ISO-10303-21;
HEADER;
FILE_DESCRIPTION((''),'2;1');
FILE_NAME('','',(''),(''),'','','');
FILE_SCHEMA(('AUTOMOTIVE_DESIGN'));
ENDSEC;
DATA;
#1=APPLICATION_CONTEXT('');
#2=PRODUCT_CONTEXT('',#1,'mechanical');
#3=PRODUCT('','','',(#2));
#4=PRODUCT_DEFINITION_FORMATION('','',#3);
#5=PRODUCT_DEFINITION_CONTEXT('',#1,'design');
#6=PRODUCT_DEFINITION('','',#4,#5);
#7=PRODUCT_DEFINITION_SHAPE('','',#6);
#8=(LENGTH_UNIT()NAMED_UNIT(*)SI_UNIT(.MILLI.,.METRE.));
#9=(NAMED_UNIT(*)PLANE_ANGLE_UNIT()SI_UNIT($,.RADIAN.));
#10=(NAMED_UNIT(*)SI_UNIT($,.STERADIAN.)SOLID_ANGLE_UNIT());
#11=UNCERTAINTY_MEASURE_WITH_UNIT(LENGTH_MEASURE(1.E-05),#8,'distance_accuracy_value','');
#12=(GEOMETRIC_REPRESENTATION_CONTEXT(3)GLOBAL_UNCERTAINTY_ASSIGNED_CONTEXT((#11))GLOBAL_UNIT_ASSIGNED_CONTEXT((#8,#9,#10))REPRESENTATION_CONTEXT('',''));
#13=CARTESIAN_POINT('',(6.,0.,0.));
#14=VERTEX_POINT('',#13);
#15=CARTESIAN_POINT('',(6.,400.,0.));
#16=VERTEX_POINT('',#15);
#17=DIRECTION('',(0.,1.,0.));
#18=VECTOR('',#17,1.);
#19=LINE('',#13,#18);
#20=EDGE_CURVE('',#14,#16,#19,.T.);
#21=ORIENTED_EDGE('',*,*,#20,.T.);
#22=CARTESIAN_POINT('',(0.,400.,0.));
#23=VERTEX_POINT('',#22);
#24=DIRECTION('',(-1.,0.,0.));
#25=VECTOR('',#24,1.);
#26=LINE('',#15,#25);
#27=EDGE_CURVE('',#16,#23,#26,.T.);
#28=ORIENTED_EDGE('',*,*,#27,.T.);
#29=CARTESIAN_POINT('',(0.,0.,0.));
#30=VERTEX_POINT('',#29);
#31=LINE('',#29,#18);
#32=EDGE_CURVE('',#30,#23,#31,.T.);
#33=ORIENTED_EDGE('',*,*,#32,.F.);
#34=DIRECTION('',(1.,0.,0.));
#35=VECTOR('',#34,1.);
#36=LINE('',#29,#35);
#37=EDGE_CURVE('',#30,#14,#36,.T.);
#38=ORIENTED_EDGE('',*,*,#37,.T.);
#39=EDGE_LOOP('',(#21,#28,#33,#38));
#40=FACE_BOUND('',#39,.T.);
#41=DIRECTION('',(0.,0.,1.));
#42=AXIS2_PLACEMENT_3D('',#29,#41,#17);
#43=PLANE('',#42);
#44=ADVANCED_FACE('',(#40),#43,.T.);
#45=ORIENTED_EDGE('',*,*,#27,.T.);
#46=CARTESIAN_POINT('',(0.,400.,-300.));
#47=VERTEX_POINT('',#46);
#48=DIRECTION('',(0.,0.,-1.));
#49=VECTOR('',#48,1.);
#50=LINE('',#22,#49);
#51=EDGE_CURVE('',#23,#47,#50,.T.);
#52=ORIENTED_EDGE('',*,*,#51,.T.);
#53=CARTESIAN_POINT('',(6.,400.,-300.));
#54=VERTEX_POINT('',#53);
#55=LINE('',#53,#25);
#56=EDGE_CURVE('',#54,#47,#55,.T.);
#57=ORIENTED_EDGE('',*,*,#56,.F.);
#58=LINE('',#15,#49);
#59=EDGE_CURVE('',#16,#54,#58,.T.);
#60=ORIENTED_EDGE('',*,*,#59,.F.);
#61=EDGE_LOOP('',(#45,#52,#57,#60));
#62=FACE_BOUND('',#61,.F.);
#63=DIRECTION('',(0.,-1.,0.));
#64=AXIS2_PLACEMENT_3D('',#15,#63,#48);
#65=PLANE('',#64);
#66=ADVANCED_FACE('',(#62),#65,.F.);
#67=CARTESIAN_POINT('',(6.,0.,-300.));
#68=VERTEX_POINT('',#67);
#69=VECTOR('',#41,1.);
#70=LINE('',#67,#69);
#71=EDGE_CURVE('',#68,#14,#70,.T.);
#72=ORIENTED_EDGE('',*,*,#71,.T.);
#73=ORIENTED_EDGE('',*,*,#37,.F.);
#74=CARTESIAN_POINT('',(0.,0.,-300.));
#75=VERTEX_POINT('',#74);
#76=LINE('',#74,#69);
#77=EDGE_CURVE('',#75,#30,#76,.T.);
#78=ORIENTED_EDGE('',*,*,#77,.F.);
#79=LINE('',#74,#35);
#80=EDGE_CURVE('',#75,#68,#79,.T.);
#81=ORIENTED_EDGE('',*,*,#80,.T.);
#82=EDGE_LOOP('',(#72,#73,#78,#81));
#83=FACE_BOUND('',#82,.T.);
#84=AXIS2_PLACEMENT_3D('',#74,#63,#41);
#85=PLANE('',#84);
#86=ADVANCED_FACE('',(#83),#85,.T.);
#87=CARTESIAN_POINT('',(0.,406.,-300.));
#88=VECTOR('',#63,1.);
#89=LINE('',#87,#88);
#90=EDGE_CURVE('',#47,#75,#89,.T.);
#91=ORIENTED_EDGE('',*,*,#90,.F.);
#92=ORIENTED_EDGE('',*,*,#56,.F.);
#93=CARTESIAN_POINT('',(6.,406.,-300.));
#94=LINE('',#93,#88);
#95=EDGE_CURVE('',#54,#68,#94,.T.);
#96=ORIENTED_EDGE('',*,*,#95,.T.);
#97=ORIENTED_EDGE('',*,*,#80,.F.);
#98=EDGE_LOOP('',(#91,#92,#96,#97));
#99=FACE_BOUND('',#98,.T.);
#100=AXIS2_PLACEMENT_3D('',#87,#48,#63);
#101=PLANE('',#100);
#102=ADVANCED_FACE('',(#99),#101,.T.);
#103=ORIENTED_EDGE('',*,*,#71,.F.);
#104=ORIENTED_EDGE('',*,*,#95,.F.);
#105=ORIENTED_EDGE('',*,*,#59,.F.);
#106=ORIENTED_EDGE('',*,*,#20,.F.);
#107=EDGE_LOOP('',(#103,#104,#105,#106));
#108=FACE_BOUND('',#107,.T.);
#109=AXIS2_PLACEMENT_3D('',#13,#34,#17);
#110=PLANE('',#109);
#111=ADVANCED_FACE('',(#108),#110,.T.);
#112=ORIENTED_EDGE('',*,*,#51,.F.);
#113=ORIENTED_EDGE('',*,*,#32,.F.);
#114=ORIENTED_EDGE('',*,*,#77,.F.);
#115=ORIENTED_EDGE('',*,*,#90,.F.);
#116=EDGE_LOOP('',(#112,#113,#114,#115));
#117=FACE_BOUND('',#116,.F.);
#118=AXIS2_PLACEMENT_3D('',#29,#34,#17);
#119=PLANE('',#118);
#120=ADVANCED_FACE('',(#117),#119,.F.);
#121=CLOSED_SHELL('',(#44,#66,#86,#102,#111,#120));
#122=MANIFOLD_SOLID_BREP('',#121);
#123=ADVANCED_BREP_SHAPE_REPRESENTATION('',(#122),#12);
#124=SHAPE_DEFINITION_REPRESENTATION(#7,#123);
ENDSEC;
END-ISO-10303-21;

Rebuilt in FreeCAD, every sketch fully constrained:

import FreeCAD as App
import Part
import Sketcher

V = App.Vector
Q = App.Units.Quantity

doc = App.newDocument("Part")
body = doc.addObject("PartDesign::Body", "Body")

sketch1 = body.newObject("Sketcher::SketchObject", "Sketch")
sketch1.AttachmentSupport = (doc.getObject("YZ_Plane"), [""])
sketch1.MapMode = "FlatFace"
sketch1.addGeometry([
    Part.LineSegment(V(406, 0, 0), V(0, 0, 0)),
    Part.LineSegment(V(0, 0, 0), V(0, -300, 0)),
    Part.LineSegment(V(0, -300, 0), V(406, -300, 0)),
    Part.LineSegment(V(406, -300, 0), V(406, 0, 0)),
], False)
sketch1.addConstraint([
    Sketcher.Constraint("Coincident", 0, 2, 1, 1),
    Sketcher.Constraint("Coincident", 1, 2, 2, 1),
    Sketcher.Constraint("Coincident", 2, 2, 3, 1),
    Sketcher.Constraint("Coincident", 3, 2, 0, 1),
    Sketcher.Constraint("Horizontal", 0),
    Sketcher.Constraint("Vertical", 1),
    Sketcher.Constraint("Horizontal", 2),
    Sketcher.Constraint("Vertical", 3),
    Sketcher.Constraint("Coincident", 0, 2, -1, 1),
    Sketcher.Constraint("DistanceX", 0, 2, 0, 1, Q("406 mm")),
    Sketcher.Constraint("DistanceY", 1, 2, 1, 1, Q("300 mm")),
])
pad1 = body.newObject("PartDesign::Pad", "Pad")
pad1.Profile = sketch1
pad1.Length = 6

sketch2 = body.newObject("Sketcher::SketchObject", "Sketch001")
sketch2.AttachmentSupport = (doc.getObject("YZ_Plane"), [""])
sketch2.MapMode = "FlatFace"
sketch2.AttachmentOffset = App.Placement(V(0, 0, 6), App.Rotation())
sketch2.addGeometry([
    Part.LineSegment(V(406, 0, 0), V(400, 0, 0)),
    Part.LineSegment(V(400, 0, 0), V(400, -300, 0)),
    Part.LineSegment(V(400, -300, 0), V(406, -300, 0)),
    Part.LineSegment(V(406, -300, 0), V(406, 0, 0)),
], False)
sketch2.addConstraint([
    Sketcher.Constraint("Coincident", 0, 2, 1, 1),
    Sketcher.Constraint("Coincident", 1, 2, 2, 1),
    Sketcher.Constraint("Coincident", 2, 2, 3, 1),
    Sketcher.Constraint("Coincident", 3, 2, 0, 1),
    Sketcher.Constraint("Horizontal", 0),
    Sketcher.Constraint("Vertical", 1),
    Sketcher.Constraint("Horizontal", 2),
    Sketcher.Constraint("Vertical", 3),
    Sketcher.Constraint("PointOnObject", 0, 2, -1),
    Sketcher.Constraint("DistanceY", 1, 2, 1, 1, Q("300 mm")),
    Sketcher.Constraint("DistanceX", -1, 1, 0, 2, Q("400 mm")),
    Sketcher.Constraint("DistanceX", 0, 2, 0, 1, Q("6 mm")),
])
pocket1 = body.newObject("PartDesign::Pocket", "Pocket")
pocket1.Profile = sketch2
pocket1.Length = 6

doc.recompute()
